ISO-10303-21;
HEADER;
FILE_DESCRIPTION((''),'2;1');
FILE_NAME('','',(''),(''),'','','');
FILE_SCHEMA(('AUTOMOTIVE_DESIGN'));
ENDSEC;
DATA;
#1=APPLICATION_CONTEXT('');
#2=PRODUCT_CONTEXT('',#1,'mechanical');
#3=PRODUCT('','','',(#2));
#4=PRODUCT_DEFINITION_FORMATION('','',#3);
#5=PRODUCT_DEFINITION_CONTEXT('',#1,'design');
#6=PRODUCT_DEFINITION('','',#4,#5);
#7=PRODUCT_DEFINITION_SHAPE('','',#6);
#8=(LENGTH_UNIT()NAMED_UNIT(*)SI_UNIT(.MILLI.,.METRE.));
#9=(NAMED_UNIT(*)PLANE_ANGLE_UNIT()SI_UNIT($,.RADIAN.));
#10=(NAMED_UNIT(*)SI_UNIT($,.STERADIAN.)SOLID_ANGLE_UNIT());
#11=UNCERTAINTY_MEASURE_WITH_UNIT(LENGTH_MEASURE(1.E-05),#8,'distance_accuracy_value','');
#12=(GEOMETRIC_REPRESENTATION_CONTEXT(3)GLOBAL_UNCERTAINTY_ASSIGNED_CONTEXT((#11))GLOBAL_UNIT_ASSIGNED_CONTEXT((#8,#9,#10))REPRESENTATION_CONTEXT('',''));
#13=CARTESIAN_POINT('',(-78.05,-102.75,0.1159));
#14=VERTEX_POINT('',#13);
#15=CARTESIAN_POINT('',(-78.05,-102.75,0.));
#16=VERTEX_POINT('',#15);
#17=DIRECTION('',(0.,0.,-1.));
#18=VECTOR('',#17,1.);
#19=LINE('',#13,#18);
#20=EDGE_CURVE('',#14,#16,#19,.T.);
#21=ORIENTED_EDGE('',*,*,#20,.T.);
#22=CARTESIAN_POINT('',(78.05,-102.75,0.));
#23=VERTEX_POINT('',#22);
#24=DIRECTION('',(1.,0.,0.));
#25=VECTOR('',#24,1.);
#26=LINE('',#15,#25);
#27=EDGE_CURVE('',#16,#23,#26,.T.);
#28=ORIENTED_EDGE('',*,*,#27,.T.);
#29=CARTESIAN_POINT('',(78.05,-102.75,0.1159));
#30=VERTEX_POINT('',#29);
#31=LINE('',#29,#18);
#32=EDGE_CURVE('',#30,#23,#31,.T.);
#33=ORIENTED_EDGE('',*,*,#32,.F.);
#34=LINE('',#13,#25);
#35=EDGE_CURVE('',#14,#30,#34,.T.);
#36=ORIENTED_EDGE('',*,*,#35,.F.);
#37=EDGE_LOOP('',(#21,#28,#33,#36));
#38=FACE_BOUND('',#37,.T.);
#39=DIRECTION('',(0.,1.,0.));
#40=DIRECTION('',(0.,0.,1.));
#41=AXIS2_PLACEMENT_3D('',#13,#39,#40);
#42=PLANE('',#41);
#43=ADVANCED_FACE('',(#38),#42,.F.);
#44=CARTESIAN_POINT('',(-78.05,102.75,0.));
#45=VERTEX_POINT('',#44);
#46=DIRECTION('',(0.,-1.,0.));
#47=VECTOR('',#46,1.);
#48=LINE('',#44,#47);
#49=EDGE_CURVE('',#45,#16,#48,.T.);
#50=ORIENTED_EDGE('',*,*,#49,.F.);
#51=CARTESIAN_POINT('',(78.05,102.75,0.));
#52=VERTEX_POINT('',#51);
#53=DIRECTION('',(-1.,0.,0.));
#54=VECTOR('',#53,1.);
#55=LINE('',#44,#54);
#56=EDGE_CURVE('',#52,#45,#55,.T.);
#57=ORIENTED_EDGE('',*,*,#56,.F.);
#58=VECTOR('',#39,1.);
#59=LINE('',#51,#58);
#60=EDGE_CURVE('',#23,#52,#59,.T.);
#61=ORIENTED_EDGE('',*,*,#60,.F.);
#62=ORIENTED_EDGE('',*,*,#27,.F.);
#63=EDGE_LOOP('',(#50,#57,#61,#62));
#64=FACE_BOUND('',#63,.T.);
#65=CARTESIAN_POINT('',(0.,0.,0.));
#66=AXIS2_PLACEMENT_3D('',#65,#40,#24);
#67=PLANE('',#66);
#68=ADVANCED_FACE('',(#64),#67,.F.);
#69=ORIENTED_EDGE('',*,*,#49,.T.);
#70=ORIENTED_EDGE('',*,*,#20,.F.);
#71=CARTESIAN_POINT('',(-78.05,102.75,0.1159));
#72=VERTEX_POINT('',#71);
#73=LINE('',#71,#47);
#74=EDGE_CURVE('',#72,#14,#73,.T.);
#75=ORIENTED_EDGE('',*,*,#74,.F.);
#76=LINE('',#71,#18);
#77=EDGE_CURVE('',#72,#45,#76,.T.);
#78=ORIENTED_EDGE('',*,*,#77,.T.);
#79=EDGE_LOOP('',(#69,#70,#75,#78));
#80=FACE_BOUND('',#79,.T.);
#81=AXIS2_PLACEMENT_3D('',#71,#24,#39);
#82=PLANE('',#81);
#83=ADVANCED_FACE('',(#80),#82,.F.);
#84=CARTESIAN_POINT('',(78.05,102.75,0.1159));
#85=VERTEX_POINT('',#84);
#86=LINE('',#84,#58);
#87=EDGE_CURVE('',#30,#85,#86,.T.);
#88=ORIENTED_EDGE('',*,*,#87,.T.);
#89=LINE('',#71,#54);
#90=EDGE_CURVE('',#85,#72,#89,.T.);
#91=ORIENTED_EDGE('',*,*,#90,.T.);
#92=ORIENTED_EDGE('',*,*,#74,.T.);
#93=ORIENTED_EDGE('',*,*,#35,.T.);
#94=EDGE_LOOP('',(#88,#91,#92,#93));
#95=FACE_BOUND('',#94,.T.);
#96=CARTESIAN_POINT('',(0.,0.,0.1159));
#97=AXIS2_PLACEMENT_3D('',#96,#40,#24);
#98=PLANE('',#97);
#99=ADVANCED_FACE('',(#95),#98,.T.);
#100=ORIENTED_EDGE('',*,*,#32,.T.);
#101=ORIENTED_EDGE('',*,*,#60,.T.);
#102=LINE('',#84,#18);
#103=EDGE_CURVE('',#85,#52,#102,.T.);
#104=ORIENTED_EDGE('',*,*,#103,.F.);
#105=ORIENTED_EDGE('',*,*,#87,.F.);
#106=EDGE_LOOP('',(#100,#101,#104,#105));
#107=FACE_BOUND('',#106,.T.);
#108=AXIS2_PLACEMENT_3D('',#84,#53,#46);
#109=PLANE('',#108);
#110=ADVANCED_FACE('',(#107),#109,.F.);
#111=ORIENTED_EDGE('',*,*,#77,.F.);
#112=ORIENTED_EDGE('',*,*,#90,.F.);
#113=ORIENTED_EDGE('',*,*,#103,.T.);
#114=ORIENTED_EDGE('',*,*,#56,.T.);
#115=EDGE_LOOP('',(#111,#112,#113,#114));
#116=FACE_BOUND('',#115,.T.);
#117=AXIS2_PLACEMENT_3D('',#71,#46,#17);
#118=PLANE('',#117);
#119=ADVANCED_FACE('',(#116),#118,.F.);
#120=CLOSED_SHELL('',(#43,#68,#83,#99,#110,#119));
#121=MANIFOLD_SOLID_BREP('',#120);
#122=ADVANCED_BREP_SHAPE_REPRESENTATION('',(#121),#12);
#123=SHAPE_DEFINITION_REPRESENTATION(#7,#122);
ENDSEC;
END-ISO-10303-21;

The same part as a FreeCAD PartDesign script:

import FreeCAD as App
import Part
import Sketcher


def add_polygon(sketch, points):
    """Adds a closed chain of lines whose ends are joined by coincident constraints."""
    first, n = sketch.GeometryCount, len(points)
    for a, b in zip(points, points[1:] + points[:1]):
        sketch.addGeometry(Part.LineSegment(App.Vector(*a, 0), App.Vector(*b, 0)), False)
    for i in range(n):
        sketch.addConstraint(Sketcher.Constraint("Coincident", first + i, 2, first + (i + 1) % n, 1))

doc = App.newDocument("Part")
body = doc.addObject("PartDesign::Body", "Body")

sketch1 = body.newObject("Sketcher::SketchObject", "Sketch")
sketch1.AttachmentSupport = (doc.getObject("XY_Plane"), [""])
sketch1.MapMode = "FlatFace"
add_polygon(sketch1, [(-78.05, 102.75), (-78.05, -102.75), (78.05, -102.75), (78.05, 102.75)])
sketch1.addConstraint([
    Sketcher.Constraint("Vertical", 0),
    Sketcher.Constraint("Horizontal", 1),
    Sketcher.Constraint("Vertical", 2),
    Sketcher.Constraint("Horizontal", 3),
    Sketcher.Constraint("Symmetric", 0, 2, 2, 2, -1, 1),
    Sketcher.Constraint("DistanceX", 1, 1, 1, 2, 156.1),
    Sketcher.Constraint("DistanceY", 0, 2, 0, 1, 205.5),
])
pad1 = body.newObject("PartDesign::Pad", "Pad")
pad1.Profile = sketch1
pad1.Length = 0.1159

doc.recompute()
